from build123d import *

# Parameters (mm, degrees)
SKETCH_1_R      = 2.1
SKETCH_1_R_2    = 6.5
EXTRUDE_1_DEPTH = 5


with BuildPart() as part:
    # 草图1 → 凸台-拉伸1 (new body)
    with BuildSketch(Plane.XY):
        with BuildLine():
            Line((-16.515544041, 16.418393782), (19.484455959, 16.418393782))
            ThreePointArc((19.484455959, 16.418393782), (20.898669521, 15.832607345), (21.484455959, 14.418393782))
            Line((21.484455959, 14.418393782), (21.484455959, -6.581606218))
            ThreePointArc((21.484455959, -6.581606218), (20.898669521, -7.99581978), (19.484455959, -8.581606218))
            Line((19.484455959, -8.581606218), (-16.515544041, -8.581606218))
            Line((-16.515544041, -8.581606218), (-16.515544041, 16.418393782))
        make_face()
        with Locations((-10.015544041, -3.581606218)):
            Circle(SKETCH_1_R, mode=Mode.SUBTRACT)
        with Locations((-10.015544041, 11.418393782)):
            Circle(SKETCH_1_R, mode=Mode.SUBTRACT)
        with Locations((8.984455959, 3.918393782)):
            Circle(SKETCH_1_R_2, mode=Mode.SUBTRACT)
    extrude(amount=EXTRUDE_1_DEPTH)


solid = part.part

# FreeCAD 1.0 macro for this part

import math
import FreeCAD as App
import Part
import Sketcher
Q = App.Units.Quantity

doc = App.newDocument("Part")
body = doc.addObject("PartDesign::Body", "Body")

# Sketch on XY plane
sketch1 = body.newObject("Sketcher::SketchObject", "Sketch")
sketch1.AttachmentSupport = (doc.getObject("XY_Plane"), [""])
sketch1.MapMode = "FlatFace"
sketch1.addGeometry(Part.LineSegment(App.Vector(19.484456, 16.418394, 0), App.Vector(-16.515544, 16.418394, 0)), False)
sketch1.addGeometry(Part.LineSegment(App.Vector(-16.515544, 16.418394, 0), App.Vector(-16.515544, -8.581606, 0)), False)
sketch1.addGeometry(Part.LineSegment(App.Vector(-16.515544, -8.581606, 0), App.Vector(19.484456, -8.581606, 0)), False)
sketch1.addGeometry(Part.ArcOfCircle(Part.Circle(App.Vector(19.484456, -6.581606, 0), App.Vector(0, 0, 1), 2), math.radians(-90), math.radians(0)), False)
sketch1.addGeometry(Part.LineSegment(App.Vector(21.484456, -6.581606, 0), App.Vector(21.484456, 14.418394, 0)), False)
sketch1.addGeometry(Part.ArcOfCircle(Part.Circle(App.Vector(19.484456, 14.418394, 0), App.Vector(0, 0, 1), 2), math.radians(0), math.radians(90)), False)
sketch1.addGeometry(Part.Circle(App.Vector(-10.015544, -3.581606, 0), App.Vector(0, 0, 1), 2.1), False)
sketch1.addGeometry(Part.Circle(App.Vector(8.984456, 3.918394, 0), App.Vector(0, 0, 1), 6.5), False)
sketch1.addGeometry(Part.Circle(App.Vector(-10.015544, 11.418394, 0), App.Vector(0, 0, 1), 2.1), False)
sketch1.addConstraint(Sketcher.Constraint("Coincident", 0, 2, 1, 1))
sketch1.addConstraint(Sketcher.Constraint("Coincident", 1, 2, 2, 1))
sketch1.addConstraint(Sketcher.Constraint("Tangent", 2, 2, 3, 1))
sketch1.addConstraint(Sketcher.Constraint("Tangent", 3, 2, 4, 1))
sketch1.addConstraint(Sketcher.Constraint("Tangent", 4, 2, 5, 1))
sketch1.addConstraint(Sketcher.Constraint("Tangent", 5, 2, 0, 1))
sketch1.addConstraint(Sketcher.Constraint("Horizontal", 0))
sketch1.addConstraint(Sketcher.Constraint("Vertical", 1))
sketch1.addConstraint(Sketcher.Constraint("Horizontal", 2))
sketch1.addConstraint(Sketcher.Constraint("Vertical", 4))
sketch1.addConstraint(Sketcher.Constraint("Equal", 3, 5))
sketch1.addConstraint(Sketcher.Constraint("Equal", 6, 8))
sketch1.addConstraint(Sketcher.Constraint("Vertical", 6, 3, 8, 3))
sketch1.addConstraint(Sketcher.Constraint("Diameter", 7, Q("13 mm")))
sketch1.addConstraint(Sketcher.Constraint("Radius", 3, Q("2 mm")))
sketch1.addConstraint(Sketcher.Constraint("Diameter", 6, Q("4.2 mm")))
sketch1.addConstraint(Sketcher.Constraint("DistanceX", 0, 2, 0, 1, Q("36 mm")))
sketch1.addConstraint(Sketcher.Constraint("DistanceY", 1, 2, 1, 1, Q("25 mm")))
sketch1.addConstraint(Sketcher.Constraint("DistanceY", 3, 3, 6, 3, Q("3 mm")))
sketch1.addConstraint(Sketcher.Constraint("DistanceX", 6, 3, 7, 3, Q("19 mm")))
sketch1.addConstraint(Sketcher.Constraint("DistanceY", 6, 3, 8, 3, Q("15 mm")))
sketch1.addConstraint(Sketcher.Constraint("DistanceX", 6, 3, 3, 3, Q("29.5 mm")))
sketch1.addConstraint(Sketcher.Constraint("DistanceY", 3, 3, 7, 3, Q("10.5 mm")))
sketch1.addConstraint(Sketcher.Constraint("DistanceX", -1, 1, 3, 3, Q("19.484456 mm")))
sketch1.addConstraint(Sketcher.Constraint("DistanceY", 3, 3, -1, 1, Q("6.581606 mm")))
pad1 = body.newObject("PartDesign::Pad", "Pad")
pad1.Profile = sketch1
pad1.Length = 5

doc.recompute()
